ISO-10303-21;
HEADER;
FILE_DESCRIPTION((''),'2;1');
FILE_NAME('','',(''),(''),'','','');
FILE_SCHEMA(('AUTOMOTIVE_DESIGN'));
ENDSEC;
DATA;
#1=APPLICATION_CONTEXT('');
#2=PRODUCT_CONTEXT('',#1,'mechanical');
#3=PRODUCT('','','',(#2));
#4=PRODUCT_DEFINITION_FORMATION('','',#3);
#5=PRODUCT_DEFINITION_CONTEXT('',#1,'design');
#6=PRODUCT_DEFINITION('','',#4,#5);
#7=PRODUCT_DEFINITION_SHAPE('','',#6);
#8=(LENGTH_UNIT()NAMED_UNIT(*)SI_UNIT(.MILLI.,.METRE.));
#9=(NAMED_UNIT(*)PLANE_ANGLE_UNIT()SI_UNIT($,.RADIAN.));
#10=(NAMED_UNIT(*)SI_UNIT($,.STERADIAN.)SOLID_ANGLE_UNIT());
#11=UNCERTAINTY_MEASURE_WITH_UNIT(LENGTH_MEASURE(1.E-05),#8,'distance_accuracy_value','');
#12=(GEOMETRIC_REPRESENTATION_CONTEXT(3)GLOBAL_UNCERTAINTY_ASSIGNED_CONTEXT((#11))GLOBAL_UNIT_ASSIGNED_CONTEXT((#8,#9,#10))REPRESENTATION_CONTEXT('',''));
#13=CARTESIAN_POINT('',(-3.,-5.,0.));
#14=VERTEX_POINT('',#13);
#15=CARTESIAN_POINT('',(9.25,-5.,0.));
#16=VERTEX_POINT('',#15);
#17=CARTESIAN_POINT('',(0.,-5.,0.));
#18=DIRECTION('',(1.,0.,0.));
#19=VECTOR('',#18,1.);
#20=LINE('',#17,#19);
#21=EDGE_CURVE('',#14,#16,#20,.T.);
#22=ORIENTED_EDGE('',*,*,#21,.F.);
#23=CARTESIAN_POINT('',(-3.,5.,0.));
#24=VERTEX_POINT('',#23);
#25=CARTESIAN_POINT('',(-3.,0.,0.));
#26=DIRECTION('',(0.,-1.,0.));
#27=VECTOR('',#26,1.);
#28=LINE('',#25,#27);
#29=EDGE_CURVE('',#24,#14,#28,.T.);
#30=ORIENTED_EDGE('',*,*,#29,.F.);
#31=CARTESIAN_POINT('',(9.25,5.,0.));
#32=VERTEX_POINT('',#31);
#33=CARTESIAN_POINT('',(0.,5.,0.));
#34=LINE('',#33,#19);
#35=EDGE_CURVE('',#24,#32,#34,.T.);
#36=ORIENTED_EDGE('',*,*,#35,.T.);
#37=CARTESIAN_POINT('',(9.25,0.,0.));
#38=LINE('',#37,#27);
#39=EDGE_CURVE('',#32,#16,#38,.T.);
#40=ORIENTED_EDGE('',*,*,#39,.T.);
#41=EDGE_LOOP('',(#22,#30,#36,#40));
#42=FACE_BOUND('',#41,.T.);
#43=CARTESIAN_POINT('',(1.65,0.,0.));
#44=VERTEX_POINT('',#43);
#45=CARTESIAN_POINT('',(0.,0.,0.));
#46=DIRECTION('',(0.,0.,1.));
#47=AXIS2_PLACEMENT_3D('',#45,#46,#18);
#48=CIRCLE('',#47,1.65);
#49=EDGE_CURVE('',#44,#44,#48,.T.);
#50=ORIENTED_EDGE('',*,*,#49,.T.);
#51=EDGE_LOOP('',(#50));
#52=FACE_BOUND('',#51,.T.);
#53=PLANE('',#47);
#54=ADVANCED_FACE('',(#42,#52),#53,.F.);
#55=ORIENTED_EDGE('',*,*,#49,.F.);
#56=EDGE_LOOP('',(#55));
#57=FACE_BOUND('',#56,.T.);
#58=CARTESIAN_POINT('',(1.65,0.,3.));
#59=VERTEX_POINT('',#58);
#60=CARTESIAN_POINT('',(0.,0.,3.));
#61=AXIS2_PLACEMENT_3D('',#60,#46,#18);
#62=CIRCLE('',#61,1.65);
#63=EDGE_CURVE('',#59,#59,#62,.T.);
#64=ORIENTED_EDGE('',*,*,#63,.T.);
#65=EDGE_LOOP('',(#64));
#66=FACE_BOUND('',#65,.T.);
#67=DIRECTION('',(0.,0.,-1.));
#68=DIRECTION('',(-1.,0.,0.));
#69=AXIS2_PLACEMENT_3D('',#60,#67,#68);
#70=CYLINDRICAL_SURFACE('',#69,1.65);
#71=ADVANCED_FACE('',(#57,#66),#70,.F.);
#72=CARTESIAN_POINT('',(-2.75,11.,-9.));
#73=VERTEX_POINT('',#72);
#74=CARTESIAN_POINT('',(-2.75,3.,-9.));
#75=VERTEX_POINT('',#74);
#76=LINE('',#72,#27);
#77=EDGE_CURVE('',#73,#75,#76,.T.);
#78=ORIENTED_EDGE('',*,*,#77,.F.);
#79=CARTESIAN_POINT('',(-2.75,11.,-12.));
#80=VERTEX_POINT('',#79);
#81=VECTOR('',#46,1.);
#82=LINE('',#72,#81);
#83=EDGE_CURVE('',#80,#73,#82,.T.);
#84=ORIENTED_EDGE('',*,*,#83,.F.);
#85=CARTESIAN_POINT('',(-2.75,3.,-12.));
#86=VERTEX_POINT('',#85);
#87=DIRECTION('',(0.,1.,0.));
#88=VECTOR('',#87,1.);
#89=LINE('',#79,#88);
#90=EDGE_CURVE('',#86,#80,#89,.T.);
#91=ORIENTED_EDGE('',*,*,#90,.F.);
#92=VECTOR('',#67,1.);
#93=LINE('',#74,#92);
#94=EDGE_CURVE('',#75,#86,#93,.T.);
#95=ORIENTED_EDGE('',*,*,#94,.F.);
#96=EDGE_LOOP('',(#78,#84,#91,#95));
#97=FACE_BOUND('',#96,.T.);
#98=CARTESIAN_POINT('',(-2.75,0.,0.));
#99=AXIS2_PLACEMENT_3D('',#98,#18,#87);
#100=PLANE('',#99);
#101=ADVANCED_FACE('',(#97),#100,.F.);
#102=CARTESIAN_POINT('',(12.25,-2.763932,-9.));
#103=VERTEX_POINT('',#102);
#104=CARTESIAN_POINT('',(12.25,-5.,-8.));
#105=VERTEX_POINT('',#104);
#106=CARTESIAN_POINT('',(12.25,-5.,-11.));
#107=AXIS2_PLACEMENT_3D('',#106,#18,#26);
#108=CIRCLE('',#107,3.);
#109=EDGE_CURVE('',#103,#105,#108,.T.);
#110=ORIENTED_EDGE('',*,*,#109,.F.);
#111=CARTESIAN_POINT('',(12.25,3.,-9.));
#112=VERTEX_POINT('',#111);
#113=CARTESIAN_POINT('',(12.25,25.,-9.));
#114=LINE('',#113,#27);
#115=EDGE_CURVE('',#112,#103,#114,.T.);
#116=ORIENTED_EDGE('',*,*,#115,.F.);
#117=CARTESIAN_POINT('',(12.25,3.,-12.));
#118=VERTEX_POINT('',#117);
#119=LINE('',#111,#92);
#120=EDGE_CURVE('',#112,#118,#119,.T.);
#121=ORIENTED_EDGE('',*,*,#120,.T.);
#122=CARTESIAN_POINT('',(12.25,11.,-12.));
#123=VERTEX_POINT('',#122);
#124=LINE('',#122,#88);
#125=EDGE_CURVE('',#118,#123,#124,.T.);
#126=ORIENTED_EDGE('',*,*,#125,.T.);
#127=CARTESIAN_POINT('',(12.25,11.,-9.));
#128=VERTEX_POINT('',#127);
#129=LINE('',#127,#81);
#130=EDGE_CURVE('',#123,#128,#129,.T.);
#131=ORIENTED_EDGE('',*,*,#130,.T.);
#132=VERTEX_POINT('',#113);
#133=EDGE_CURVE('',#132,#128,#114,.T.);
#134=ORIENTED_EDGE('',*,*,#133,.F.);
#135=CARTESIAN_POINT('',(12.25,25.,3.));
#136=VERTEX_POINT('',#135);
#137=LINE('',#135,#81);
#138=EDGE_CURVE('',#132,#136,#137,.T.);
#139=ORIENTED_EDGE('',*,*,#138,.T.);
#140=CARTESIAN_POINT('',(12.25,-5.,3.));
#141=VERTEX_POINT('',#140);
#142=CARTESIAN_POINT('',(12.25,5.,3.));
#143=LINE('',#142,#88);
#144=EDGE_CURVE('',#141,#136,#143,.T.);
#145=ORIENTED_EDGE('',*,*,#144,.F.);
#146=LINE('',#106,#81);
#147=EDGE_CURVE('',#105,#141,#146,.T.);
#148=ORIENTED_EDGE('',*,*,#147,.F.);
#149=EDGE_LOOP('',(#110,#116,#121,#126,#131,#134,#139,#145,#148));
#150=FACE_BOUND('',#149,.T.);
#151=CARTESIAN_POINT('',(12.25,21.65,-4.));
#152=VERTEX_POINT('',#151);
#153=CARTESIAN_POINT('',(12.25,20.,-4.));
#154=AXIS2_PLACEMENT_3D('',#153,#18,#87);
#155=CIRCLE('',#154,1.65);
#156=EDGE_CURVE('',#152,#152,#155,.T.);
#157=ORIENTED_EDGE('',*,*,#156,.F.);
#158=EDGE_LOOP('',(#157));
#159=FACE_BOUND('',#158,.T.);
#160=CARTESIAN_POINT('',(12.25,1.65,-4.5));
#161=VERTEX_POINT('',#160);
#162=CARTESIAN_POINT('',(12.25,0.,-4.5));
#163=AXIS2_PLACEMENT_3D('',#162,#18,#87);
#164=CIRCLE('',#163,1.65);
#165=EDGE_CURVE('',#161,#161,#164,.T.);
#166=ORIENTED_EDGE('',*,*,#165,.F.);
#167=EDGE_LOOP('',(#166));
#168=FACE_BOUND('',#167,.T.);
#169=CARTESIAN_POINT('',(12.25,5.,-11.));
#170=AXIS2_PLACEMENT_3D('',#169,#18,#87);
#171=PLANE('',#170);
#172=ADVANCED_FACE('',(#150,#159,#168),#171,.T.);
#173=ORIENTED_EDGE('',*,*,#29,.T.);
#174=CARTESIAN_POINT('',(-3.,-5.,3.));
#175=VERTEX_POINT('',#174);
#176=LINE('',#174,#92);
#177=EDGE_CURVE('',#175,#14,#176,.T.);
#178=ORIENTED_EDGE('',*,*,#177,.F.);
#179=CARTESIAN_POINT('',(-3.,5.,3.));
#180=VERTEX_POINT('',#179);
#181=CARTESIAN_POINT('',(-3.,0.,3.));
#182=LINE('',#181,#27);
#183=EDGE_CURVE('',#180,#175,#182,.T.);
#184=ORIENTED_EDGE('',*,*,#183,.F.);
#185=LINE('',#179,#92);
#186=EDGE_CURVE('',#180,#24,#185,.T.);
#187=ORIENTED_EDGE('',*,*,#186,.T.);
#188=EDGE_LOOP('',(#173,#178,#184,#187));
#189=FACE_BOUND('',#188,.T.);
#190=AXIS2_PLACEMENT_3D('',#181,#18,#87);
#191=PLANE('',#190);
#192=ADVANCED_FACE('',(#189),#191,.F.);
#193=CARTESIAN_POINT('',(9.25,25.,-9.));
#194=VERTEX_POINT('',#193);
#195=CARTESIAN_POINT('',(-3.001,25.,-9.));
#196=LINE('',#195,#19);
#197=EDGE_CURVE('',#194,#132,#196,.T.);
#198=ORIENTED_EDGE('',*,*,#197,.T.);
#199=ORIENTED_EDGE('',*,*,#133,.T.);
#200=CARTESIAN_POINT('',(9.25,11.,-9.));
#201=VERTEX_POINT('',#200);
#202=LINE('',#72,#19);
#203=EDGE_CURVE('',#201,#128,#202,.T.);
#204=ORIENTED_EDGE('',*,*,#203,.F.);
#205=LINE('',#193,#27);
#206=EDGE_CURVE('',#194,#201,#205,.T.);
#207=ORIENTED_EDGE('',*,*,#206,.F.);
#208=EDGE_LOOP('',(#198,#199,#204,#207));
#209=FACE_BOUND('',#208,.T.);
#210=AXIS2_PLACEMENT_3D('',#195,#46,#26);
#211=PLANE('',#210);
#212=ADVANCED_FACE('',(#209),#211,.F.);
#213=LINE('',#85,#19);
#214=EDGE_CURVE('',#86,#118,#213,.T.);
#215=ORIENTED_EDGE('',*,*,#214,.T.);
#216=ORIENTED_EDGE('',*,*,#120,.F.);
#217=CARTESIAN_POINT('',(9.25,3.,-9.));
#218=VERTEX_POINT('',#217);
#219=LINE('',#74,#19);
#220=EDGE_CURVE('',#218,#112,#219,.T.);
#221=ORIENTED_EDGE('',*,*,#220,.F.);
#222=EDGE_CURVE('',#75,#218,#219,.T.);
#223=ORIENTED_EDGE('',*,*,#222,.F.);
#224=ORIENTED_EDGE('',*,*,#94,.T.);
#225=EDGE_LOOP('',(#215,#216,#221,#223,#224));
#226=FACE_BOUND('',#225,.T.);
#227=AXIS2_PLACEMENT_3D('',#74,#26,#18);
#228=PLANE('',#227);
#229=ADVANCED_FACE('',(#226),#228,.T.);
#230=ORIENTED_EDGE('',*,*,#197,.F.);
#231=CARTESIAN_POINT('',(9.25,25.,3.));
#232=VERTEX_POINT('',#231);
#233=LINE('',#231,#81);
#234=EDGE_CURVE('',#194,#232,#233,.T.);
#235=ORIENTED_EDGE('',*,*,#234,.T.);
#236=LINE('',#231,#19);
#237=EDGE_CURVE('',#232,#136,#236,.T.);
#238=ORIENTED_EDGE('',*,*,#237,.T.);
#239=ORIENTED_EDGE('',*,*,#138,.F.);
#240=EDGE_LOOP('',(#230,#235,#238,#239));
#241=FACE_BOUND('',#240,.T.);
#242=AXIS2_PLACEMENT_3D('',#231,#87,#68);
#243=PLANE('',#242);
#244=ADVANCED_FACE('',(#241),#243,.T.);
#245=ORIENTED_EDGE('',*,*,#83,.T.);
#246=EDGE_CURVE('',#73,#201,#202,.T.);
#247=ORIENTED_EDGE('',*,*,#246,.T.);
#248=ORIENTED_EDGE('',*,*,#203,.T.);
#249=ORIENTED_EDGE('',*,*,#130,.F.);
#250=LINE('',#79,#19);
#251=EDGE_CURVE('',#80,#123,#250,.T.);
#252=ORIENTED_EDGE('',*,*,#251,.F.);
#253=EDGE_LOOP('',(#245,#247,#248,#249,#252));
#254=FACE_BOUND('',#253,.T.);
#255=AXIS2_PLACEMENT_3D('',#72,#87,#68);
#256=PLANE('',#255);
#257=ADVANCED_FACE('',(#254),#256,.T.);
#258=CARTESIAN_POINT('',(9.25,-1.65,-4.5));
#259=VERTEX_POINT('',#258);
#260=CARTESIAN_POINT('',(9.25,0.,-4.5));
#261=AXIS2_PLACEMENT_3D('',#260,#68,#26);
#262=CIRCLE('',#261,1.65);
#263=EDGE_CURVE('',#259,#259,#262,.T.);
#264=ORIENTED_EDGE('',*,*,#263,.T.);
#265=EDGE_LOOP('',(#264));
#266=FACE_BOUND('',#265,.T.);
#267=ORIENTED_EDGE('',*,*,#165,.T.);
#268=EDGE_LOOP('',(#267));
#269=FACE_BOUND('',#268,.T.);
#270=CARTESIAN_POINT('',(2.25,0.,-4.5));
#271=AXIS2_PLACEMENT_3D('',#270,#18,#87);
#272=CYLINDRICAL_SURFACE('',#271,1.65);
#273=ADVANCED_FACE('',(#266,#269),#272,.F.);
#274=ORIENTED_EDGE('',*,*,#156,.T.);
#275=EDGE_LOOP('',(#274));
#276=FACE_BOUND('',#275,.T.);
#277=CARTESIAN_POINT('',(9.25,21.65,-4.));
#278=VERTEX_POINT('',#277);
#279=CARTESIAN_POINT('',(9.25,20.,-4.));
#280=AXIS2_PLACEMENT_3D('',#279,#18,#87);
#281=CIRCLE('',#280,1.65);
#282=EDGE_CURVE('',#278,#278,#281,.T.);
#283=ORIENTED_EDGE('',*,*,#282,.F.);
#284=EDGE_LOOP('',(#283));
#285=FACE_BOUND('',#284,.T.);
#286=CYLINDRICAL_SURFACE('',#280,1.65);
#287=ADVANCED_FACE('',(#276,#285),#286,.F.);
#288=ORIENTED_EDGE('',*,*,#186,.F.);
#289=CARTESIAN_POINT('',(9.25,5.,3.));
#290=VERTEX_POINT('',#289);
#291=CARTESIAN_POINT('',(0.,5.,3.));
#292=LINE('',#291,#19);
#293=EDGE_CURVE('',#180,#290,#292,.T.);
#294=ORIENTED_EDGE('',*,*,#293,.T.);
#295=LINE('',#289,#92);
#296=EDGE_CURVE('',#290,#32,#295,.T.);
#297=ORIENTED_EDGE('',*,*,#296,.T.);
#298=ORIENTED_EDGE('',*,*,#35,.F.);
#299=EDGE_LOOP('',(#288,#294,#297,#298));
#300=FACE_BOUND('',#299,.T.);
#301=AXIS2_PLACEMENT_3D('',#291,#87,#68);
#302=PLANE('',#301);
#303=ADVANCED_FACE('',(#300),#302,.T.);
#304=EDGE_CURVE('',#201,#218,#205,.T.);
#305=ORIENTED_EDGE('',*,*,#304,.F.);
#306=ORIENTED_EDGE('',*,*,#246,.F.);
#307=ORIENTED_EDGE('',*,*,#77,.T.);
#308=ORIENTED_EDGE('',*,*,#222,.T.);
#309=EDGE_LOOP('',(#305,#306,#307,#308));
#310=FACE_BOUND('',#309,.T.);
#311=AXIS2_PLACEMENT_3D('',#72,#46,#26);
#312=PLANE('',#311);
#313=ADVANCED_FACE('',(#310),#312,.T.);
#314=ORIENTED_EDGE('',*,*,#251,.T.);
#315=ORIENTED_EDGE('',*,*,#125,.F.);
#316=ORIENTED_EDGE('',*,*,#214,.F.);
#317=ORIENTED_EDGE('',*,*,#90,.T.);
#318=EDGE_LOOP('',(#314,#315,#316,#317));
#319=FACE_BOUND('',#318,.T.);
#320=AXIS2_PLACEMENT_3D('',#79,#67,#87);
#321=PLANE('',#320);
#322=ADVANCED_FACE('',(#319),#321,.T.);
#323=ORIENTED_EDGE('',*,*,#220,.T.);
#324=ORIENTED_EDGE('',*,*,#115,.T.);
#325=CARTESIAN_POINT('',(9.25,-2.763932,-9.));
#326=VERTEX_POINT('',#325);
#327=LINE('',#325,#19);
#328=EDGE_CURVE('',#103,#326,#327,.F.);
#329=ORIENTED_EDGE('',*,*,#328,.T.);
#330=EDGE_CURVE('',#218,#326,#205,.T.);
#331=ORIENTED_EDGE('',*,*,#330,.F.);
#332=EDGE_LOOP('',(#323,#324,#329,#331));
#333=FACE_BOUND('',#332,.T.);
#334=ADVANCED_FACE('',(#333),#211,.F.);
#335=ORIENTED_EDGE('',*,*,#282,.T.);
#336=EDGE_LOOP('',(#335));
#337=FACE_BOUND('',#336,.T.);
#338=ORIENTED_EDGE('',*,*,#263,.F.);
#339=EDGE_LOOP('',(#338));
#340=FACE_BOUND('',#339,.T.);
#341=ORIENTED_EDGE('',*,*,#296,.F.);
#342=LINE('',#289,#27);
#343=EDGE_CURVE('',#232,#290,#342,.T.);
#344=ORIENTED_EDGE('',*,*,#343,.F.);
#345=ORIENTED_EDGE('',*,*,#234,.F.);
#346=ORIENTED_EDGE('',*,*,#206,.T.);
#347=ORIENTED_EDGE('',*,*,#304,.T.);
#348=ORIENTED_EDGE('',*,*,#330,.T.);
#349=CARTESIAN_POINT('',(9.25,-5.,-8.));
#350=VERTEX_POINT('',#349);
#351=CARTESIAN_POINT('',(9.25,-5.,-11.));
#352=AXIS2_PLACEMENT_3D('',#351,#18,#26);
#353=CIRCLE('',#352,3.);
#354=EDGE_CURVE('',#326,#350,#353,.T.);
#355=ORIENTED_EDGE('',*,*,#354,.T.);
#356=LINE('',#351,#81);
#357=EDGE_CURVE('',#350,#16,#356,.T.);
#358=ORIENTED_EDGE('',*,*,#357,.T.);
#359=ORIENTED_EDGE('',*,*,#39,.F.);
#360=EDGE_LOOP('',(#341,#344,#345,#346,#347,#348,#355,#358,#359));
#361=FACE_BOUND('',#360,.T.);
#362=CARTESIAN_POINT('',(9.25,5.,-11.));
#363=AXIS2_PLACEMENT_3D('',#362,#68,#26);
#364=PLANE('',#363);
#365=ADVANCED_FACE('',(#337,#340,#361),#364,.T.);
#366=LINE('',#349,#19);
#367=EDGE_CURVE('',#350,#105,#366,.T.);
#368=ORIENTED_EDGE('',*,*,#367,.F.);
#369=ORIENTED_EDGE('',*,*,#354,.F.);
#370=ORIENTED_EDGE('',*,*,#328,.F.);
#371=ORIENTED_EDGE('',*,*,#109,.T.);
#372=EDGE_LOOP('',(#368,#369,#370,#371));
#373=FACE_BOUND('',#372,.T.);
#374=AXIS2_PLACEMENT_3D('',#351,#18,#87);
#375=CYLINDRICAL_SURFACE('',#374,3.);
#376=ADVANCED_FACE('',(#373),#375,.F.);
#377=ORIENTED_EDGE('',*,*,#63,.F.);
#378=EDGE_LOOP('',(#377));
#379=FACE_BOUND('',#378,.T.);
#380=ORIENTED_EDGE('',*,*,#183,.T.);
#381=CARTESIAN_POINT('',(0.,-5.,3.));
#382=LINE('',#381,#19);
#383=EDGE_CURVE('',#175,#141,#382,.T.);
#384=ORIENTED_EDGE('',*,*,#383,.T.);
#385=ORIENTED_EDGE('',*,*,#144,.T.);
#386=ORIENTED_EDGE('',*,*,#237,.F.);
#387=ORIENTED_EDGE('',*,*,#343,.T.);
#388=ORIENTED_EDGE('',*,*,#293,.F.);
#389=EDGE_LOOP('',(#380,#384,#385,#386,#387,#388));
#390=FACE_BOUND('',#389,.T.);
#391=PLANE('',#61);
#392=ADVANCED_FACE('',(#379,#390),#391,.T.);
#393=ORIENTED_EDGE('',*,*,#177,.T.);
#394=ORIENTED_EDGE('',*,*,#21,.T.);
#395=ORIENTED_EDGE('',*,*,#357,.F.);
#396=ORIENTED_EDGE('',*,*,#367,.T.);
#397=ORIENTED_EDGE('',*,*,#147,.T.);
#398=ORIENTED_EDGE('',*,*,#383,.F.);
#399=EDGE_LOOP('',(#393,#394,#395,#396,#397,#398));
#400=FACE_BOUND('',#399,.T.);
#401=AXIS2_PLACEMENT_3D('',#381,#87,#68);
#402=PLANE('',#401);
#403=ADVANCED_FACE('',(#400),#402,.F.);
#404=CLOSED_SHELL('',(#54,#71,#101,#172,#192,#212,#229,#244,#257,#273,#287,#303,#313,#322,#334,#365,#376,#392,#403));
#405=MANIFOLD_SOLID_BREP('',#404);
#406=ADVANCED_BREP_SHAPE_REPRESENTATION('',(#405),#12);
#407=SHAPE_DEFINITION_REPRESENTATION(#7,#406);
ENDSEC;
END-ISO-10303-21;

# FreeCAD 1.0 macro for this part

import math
import FreeCAD as App
import Part
import Sketcher

V = App.Vector
Q = App.Units.Quantity


def add_polygon(sketch, points):
    """Adds a closed chain of lines whose ends are joined by coincident constraints."""
    first, n = sketch.GeometryCount, len(points)
    for a, b in zip(points, points[1:] + points[:1]):
        sketch.addGeometry(Part.LineSegment(App.Vector(*a, 0), App.Vector(*b, 0)), False)
    for i in range(n):
        sketch.addConstraint(Sketcher.Constraint("Coincident", first + i, 2, first + (i + 1) % n, 1))

doc = App.newDocument("Part")
body = doc.addObject("PartDesign::Body", "Body")

# Sketch on XY plane
sketch1 = body.newObject("Sketcher::SketchObject", "Sketch")
sketch1.AttachmentSupport = (doc.getObject("XY_Plane"), [""])
sketch1.MapMode = "FlatFace"
add_polygon(sketch1, [(-3, 5), (-3, -5), (9.25, -5), (9.25, 5)])  # lines 0-3
sketch1.addGeometry(Part.Circle(V(0, 0, 0), V(0, 0, 1), 1.65), False)  # 4
sketch1.addConstraint(Sketcher.Constraint("Vertical", 0))
sketch1.addConstraint(Sketcher.Constraint("Horizontal", 1))
sketch1.addConstraint(Sketcher.Constraint("Vertical", 2))
sketch1.addConstraint(Sketcher.Constraint("Horizontal", 3))
sketch1.addConstraint(Sketcher.Constraint("Coincident", 4, 3, -1, 1))
sketch1.addConstraint(Sketcher.Constraint("Diameter", 4, Q("3.3 mm")))
sketch1.addConstraint(Sketcher.Constraint("DistanceY", 0, 2, 0, 1, Q("10 mm")))
sketch1.addConstraint(Sketcher.Constraint("DistanceX", 0, 2, -1, 1, Q("3 mm")))
sketch1.addConstraint(Sketcher.Constraint("DistanceY", 0, 2, -1, 1, Q("5 mm")))
sketch1.addConstraint(Sketcher.Constraint("DistanceX", 1, 1, 1, 2, Q("12.25 mm")))
pad1 = body.newObject("PartDesign::Pad", "Pad")
pad1.Profile = sketch1
pad1.Length = 3

# Sketch on XY plane
sketch2 = body.newObject("Sketcher::SketchObject", "Sketch001")
sketch2.AttachmentSupport = (doc.getObject("XY_Plane"), [""])
sketch2.MapMode = "FlatFace"
sketch2.AttachmentOffset = App.Placement(V(0, 0, 3), App.Rotation())
add_polygon(sketch2, [(9.25, 5), (9.25, -5), (12.25, -5), (12.25, 5)])  # lines 0-3
sketch2.addConstraint(Sketcher.Constraint("Vertical", 0))
sketch2.addConstraint(Sketcher.Constraint("Horizontal", 1))
sketch2.addConstraint(Sketcher.Constraint("Vertical", 2))
sketch2.addConstraint(Sketcher.Constraint("Horizontal", 3))
sketch2.addConstraint(Sketcher.Constraint("DistanceX", 1, 1, 1, 2, Q("3 mm")))
sketch2.addConstraint(Sketcher.Constraint("DistanceY", 0, 2, 0, 1, Q("10 mm")))
sketch2.addConstraint(Sketcher.Constraint("DistanceY", 0, 2, -1, 1, Q("5 mm")))
sketch2.addConstraint(Sketcher.Constraint("DistanceX", -1, 1, 0, 2, Q("9.25 mm")))
pad2 = body.newObject("PartDesign::Pad", "Pad001")
pad2.Profile = sketch2
pad2.Length = 14
pad2.Reversed = True

# Sketch on YZ plane
sketch3 = body.newObject("Sketcher::SketchObject", "Sketch002")
sketch3.AttachmentSupport = (doc.getObject("YZ_Plane"), [""])
sketch3.MapMode = "FlatFace"
sketch3.AttachmentOffset = App.Placement(V(0, 0, 12.25), App.Rotation())
sketch3.addGeometry(Part.Circle(V(0, -4.5, 0), V(0, 0, 1), 1.65), False)
sketch3.addConstraint(Sketcher.Constraint("PointOnObject", 0, 3, -2))
sketch3.addConstraint(Sketcher.Constraint("Diameter", 0, Q("3.3 mm")))
sketch3.addConstraint(Sketcher.Constraint("DistanceY", 0, 3, -1, 1, Q("4.5 mm")))
pocket1 = body.newObject("PartDesign::Pocket", "Pocket")
pocket1.Profile = sketch3
pocket1.Length = 10

# Sketch on YZ plane
sketch4 = body.newObject("Sketcher::SketchObject", "Sketch003")
sketch4.AttachmentSupport = (doc.getObject("YZ_Plane"), [""])
sketch4.MapMode = "FlatFace"
sketch4.AttachmentOffset = App.Placement(V(0, 0, 12.25), App.Rotation())
add_polygon(sketch4, [(25, 3), (5, 3), (5, -11), (25, -11)])  # lines 0-3
sketch4.addGeometry(Part.Circle(V(20, -4, 0), V(0, 0, 1), 1.65), False)  # 4
sketch4.addConstraint(Sketcher.Constraint("Horizontal", 0))
sketch4.addConstraint(Sketcher.Constraint("Vertical", 1))
sketch4.addConstraint(Sketcher.Constraint("Horizontal", 2))
sketch4.addConstraint(Sketcher.Constraint("Vertical", 3))
sketch4.addConstraint(Sketcher.Constraint("Diameter", 4, Q("3.3 mm")))
sketch4.addConstraint(Sketcher.Constraint("DistanceX", 0, 2, 0, 1, Q("20 mm")))
sketch4.addConstraint(Sketcher.Constraint("DistanceY", 1, 2, 1, 1, Q("14 mm")))
sketch4.addConstraint(Sketcher.Constraint("DistanceX", -1, 1, 4, 3, Q("20 mm")))
sketch4.addConstraint(Sketcher.Constraint("DistanceY", 4, 3, -1, 1, Q("4 mm")))
sketch4.addConstraint(Sketcher.Constraint("DistanceX", -1, 1, 0, 2, Q("5 mm")))
sketch4.addConstraint(Sketcher.Constraint("DistanceY", -1, 1, 0, 2, Q("3 mm")))
pad3 = body.newObject("PartDesign::Pad", "Pad002")
pad3.Profile = sketch4
pad3.Length = 3
pad3.Reversed = True

# Sketch on YZ plane
sketch5 = body.newObject("Sketcher::SketchObject", "Sketch004")
sketch5.AttachmentSupport = (doc.getObject("YZ_Plane"), [""])
sketch5.MapMode = "FlatFace"
sketch5.AttachmentOffset = App.Placement(V(0, 0, 12.25), App.Rotation())
sketch5.addGeometry(Part.LineSegment(V(-5, -8, 0), V(-5, -11, 0)), False)
sketch5.addGeometry(Part.LineSegment(V(-5, -11, 0), V(-2, -11, 0)), False)
sketch5.addGeometry(Part.ArcOfCircle(Part.Circle(V(-5, -11, 0), V(0, 0, 1), 3), math.radians(0), math.radians(90)), False)
sketch5.addConstraint(Sketcher.Constraint("Coincident", 0, 2, 1, 1))
sketch5.addConstraint(Sketcher.Constraint("Coincident", 1, 2, 2, 1))
sketch5.addConstraint(Sketcher.Constraint("Coincident", 2, 2, 0, 1))
sketch5.addConstraint(Sketcher.Constraint("Vertical", 0))
sketch5.addConstraint(Sketcher.Constraint("Horizontal", 1))
sketch5.addConstraint(Sketcher.Constraint("Coincident", 0, 2, 2, 3))
sketch5.addConstraint(Sketcher.Constraint("Radius", 2, Q("3 mm")))
sketch5.addConstraint(Sketcher.Constraint("DistanceX", 2, 3, -1, 1, Q("5 mm")))
sketch5.addConstraint(Sketcher.Constraint("DistanceY", 2, 3, -1, 1, Q("11 mm")))
pocket2 = body.newObject("PartDesign::Pocket", "Pocket001")
pocket2.Profile = sketch5
pocket2.Length = 3

# Sketch on YZ plane
sketch6 = body.newObject("Sketcher::SketchObject", "Sketch005")
sketch6.AttachmentSupport = (doc.getObject("YZ_Plane"), [""])
sketch6.MapMode = "FlatFace"
sketch6.AttachmentOffset = App.Placement(V(0, 0, 12.25), App.Rotation())
add_polygon(sketch6, [(25, -9), (-2.763932, -9), (-2.763932, -11), (25, -11)])  # lines 0-3
sketch6.addConstraint(Sketcher.Constraint("Horizontal", 0))
sketch6.addConstraint(Sketcher.Constraint("Vertical", 1))
sketch6.addConstraint(Sketcher.Constraint("Horizontal", 2))
sketch6.addConstraint(Sketcher.Constraint("Vertical", 3))
sketch6.addConstraint(Sketcher.Constraint("DistanceY", 1, 2, 1, 1, Q("2 mm")))
sketch6.addConstraint(Sketcher.Constraint("DistanceY", 0, 2, -1, 1, Q("9 mm")))
sketch6.addConstraint(Sketcher.Constraint("DistanceX", -1, 1, 2, 2, Q("25 mm")))
sketch6.addConstraint(Sketcher.Constraint("DistanceX", 0, 2, 0, 1, Q("27.763932 mm")))
pocket3 = body.newObject("PartDesign::Pocket", "Pocket002")
pocket3.Profile = sketch6
pocket3.Type = "UpToFirst"

# Sketch on YZ plane
sketch7 = body.newObject("Sketcher::SketchObject", "Sketch006")
sketch7.AttachmentSupport = (doc.getObject("YZ_Plane"), [""])
sketch7.MapMode = "FlatFace"
sketch7.AttachmentOffset = App.Placement(V(0, 0, 12.25), App.Rotation())
add_polygon(sketch7, [(11, -9), (3, -9), (3, -12), (11, -12)])  # lines 0-3
sketch7.addConstraint(Sketcher.Constraint("Horizontal", 0))
sketch7.addConstraint(Sketcher.Constraint("Vertical", 1))
sketch7.addConstraint(Sketcher.Constraint("Horizontal", 2))
sketch7.addConstraint(Sketcher.Constraint("Vertical", 3))
sketch7.addConstraint(Sketcher.Constraint("DistanceX", 0, 2, 0, 1, Q("8 mm")))
sketch7.addConstraint(Sketcher.Constraint("DistanceY", 1, 2, 1, 1, Q("3 mm")))
sketch7.addConstraint(Sketcher.Constraint("DistanceX", -1, 1, 0, 2, Q("3 mm")))
sketch7.addConstraint(Sketcher.Constraint("DistanceY", 0, 2, -1, 1, Q("9 mm")))
pad4 = body.newObject("PartDesign::Pad", "Pad003")
pad4.Profile = sketch7
pad4.Length = 15
pad4.Reversed = True

doc.recompute()
